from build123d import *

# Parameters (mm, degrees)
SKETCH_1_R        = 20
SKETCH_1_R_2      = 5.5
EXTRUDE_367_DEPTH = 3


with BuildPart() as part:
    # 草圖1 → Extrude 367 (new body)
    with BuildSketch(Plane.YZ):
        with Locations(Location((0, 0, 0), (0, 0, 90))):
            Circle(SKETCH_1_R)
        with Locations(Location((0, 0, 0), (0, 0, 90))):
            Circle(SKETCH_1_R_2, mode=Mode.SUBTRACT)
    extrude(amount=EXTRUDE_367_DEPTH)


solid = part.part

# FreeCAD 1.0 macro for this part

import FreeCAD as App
import Part
import Sketcher
from FreeCAD import Vector
Q = App.Units.Quantity

doc = App.newDocument("Part")
body = doc.addObject("PartDesign::Body", "Body")

sketch1 = body.newObject("Sketcher::SketchObject", "Sketch")
sketch1.AttachmentSupport = (doc.getObject("YZ_Plane"), [""])
sketch1.MapMode = "FlatFace"
sketch1.addGeometry([
    Part.Circle(Vector(0, 0, 0), Vector(0, 0, 1), 20),
    Part.Circle(Vector(0, 0, 0), Vector(0, 0, 1), 6),
], False)
sketch1.addConstraint([
    Sketcher.Constraint("Coincident", 0, 3, -1, 1),
    Sketcher.Constraint("Coincident", 1, 3, -1, 1),
    Sketcher.Constraint("Diameter", 0, Q("40 mm")),
    Sketcher.Constraint("Diameter", 1, Q("11 mm")),
])
pad1 = body.newObject("PartDesign::Pad", "Pad")
pad1.Profile = sketch1
pad1.Length = 3

doc.recompute()
